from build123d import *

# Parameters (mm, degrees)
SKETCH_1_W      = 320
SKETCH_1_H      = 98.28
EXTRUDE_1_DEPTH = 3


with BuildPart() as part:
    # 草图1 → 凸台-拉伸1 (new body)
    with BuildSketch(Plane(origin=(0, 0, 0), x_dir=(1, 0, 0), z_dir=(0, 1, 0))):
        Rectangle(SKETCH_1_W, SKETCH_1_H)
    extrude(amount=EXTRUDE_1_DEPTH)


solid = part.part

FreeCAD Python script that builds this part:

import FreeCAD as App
import Part
import Sketcher

V = App.Vector
Q = App.Units.Quantity


def add_polygon(sketch, points):
    """Adds a closed chain of lines whose ends are joined by coincident constraints."""
    first, n = sketch.GeometryCount, len(points)
    for a, b in zip(points, points[1:] + points[:1]):
        sketch.addGeometry(Part.LineSegment(App.Vector(*a, 0), App.Vector(*b, 0)), False)
    for i in range(n):
        sketch.addConstraint(Sketcher.Constraint("Coincident", first + i, 2, first + (i + 1) % n, 1))

doc = App.newDocument("Part")
body = doc.addObject("PartDesign::Body", "Body")

# Sketch on XZ plane
sketch1 = doc.addObject("Sketcher::SketchObject", "Sketch")
body.addObject(sketch1)
sketch1.AttachmentSupport = (doc.XZ_Plane, [""])
sketch1.MapMode = "FlatFace"
add_polygon(sketch1, [(-160, -49.14), (-160, 49.14), (160, 49.14), (160, -49.14)])  # lines 0-3
sketch1.addConstraint(Sketcher.Constraint("Vertical", 0))
sketch1.addConstraint(Sketcher.Constraint("Horizontal", 1))
sketch1.addConstraint(Sketcher.Constraint("Vertical", 2))
sketch1.addConstraint(Sketcher.Constraint("Horizontal", 3))
sketch1.addConstraint(Sketcher.Constraint("Symmetric", 0, 2, 2, 2, -1, 1))
sketch1.addConstraint(Sketcher.Constraint("DistanceX", 1, 1, 1, 2, Q("320 mm")))
sketch1.addConstraint(Sketcher.Constraint("DistanceY", 0, 1, 0, 2, Q("98.28 mm")))
pad1 = doc.addObject("PartDesign::Pad", "Pad")
body.addObject(pad1)
pad1.Profile = sketch1
pad1.Length = 3
pad1.Reversed = True

doc.recompute()
